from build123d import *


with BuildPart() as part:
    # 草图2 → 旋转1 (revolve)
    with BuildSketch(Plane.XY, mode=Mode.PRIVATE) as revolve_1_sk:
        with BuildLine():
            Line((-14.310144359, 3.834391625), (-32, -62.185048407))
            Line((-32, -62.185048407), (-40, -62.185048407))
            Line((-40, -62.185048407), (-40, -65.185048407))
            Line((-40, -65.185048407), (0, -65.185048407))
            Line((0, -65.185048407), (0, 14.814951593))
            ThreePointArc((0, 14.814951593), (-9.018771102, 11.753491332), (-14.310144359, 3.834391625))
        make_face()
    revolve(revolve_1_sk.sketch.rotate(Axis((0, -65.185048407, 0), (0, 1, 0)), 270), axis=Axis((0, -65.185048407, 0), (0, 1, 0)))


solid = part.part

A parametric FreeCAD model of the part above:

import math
import FreeCAD as App
import Part
import Sketcher
from FreeCAD import Vector
Q = App.Units.Quantity

doc = App.newDocument("Part")
body = doc.addObject("PartDesign::Body", "Body")

sketch1 = body.newObject("Sketcher::SketchObject", "Sketch")
sketch1.AttachmentSupport = (doc.getObject("XY_Plane"), [""])
sketch1.MapMode = "FlatFace"
sketch1.addGeometry([
    Part.LineSegment(Vector(-14.3, 3.8, 0), Vector(-32, -62.2, 0)),
    Part.LineSegment(Vector(-32, -62.2, 0), Vector(-40, -62.2, 0)),
    Part.LineSegment(Vector(-40, -62.2, 0), Vector(-40, -65.2, 0)),
    Part.LineSegment(Vector(-40, -65.2, 0), Vector(0, -65.2, 0)),
    Part.LineSegment(Vector(0, -65.2, 0), Vector(0, 14.8, 0)),
    Part.ArcOfCircle(Part.Circle(Vector(0, 0, 0), Vector(0, 0, 1), 14.8), math.radians(90), math.radians(165)),
], False)
sketch1.addConstraint([
    Sketcher.Constraint("Coincident", 0, 2, 1, 1),
    Sketcher.Constraint("Coincident", 1, 2, 2, 1),
    Sketcher.Constraint("Coincident", 2, 2, 3, 1),
    Sketcher.Constraint("Coincident", 3, 2, 4, 1),
    Sketcher.Constraint("Coincident", 4, 2, 5, 1),
    Sketcher.Constraint("Tangent", 5, 2, 0, 1),
    Sketcher.Constraint("Horizontal", 1),
    Sketcher.Constraint("Vertical", 2),
    Sketcher.Constraint("Horizontal", 3),
    Sketcher.Constraint("Vertical", 4),
    Sketcher.Constraint("Coincident", 5, 3, -1, 1),
    Sketcher.Constraint("PointOnObject", 3, 2, -2),
    Sketcher.Constraint("DistanceX", 1, 2, 1, 1, 8.0),
    Sketcher.Constraint("DistanceX", 3, 1, 3, 2, 40.0),
    Sketcher.Constraint("DistanceY", 2, 2, 2, 1, 3.0),
    Sketcher.Constraint("DistanceY", 4, 1, 4, 2, 80.0),
    Sketcher.Constraint("Angle", 0, Q("-105 deg")),
])
revolution = body.newObject("PartDesign::Revolution", "Revolution")
revolution.Profile = sketch1
revolution.ReferenceAxis = (sketch1, ["V_Axis"])
revolution.Angle = 360

doc.recompute()
